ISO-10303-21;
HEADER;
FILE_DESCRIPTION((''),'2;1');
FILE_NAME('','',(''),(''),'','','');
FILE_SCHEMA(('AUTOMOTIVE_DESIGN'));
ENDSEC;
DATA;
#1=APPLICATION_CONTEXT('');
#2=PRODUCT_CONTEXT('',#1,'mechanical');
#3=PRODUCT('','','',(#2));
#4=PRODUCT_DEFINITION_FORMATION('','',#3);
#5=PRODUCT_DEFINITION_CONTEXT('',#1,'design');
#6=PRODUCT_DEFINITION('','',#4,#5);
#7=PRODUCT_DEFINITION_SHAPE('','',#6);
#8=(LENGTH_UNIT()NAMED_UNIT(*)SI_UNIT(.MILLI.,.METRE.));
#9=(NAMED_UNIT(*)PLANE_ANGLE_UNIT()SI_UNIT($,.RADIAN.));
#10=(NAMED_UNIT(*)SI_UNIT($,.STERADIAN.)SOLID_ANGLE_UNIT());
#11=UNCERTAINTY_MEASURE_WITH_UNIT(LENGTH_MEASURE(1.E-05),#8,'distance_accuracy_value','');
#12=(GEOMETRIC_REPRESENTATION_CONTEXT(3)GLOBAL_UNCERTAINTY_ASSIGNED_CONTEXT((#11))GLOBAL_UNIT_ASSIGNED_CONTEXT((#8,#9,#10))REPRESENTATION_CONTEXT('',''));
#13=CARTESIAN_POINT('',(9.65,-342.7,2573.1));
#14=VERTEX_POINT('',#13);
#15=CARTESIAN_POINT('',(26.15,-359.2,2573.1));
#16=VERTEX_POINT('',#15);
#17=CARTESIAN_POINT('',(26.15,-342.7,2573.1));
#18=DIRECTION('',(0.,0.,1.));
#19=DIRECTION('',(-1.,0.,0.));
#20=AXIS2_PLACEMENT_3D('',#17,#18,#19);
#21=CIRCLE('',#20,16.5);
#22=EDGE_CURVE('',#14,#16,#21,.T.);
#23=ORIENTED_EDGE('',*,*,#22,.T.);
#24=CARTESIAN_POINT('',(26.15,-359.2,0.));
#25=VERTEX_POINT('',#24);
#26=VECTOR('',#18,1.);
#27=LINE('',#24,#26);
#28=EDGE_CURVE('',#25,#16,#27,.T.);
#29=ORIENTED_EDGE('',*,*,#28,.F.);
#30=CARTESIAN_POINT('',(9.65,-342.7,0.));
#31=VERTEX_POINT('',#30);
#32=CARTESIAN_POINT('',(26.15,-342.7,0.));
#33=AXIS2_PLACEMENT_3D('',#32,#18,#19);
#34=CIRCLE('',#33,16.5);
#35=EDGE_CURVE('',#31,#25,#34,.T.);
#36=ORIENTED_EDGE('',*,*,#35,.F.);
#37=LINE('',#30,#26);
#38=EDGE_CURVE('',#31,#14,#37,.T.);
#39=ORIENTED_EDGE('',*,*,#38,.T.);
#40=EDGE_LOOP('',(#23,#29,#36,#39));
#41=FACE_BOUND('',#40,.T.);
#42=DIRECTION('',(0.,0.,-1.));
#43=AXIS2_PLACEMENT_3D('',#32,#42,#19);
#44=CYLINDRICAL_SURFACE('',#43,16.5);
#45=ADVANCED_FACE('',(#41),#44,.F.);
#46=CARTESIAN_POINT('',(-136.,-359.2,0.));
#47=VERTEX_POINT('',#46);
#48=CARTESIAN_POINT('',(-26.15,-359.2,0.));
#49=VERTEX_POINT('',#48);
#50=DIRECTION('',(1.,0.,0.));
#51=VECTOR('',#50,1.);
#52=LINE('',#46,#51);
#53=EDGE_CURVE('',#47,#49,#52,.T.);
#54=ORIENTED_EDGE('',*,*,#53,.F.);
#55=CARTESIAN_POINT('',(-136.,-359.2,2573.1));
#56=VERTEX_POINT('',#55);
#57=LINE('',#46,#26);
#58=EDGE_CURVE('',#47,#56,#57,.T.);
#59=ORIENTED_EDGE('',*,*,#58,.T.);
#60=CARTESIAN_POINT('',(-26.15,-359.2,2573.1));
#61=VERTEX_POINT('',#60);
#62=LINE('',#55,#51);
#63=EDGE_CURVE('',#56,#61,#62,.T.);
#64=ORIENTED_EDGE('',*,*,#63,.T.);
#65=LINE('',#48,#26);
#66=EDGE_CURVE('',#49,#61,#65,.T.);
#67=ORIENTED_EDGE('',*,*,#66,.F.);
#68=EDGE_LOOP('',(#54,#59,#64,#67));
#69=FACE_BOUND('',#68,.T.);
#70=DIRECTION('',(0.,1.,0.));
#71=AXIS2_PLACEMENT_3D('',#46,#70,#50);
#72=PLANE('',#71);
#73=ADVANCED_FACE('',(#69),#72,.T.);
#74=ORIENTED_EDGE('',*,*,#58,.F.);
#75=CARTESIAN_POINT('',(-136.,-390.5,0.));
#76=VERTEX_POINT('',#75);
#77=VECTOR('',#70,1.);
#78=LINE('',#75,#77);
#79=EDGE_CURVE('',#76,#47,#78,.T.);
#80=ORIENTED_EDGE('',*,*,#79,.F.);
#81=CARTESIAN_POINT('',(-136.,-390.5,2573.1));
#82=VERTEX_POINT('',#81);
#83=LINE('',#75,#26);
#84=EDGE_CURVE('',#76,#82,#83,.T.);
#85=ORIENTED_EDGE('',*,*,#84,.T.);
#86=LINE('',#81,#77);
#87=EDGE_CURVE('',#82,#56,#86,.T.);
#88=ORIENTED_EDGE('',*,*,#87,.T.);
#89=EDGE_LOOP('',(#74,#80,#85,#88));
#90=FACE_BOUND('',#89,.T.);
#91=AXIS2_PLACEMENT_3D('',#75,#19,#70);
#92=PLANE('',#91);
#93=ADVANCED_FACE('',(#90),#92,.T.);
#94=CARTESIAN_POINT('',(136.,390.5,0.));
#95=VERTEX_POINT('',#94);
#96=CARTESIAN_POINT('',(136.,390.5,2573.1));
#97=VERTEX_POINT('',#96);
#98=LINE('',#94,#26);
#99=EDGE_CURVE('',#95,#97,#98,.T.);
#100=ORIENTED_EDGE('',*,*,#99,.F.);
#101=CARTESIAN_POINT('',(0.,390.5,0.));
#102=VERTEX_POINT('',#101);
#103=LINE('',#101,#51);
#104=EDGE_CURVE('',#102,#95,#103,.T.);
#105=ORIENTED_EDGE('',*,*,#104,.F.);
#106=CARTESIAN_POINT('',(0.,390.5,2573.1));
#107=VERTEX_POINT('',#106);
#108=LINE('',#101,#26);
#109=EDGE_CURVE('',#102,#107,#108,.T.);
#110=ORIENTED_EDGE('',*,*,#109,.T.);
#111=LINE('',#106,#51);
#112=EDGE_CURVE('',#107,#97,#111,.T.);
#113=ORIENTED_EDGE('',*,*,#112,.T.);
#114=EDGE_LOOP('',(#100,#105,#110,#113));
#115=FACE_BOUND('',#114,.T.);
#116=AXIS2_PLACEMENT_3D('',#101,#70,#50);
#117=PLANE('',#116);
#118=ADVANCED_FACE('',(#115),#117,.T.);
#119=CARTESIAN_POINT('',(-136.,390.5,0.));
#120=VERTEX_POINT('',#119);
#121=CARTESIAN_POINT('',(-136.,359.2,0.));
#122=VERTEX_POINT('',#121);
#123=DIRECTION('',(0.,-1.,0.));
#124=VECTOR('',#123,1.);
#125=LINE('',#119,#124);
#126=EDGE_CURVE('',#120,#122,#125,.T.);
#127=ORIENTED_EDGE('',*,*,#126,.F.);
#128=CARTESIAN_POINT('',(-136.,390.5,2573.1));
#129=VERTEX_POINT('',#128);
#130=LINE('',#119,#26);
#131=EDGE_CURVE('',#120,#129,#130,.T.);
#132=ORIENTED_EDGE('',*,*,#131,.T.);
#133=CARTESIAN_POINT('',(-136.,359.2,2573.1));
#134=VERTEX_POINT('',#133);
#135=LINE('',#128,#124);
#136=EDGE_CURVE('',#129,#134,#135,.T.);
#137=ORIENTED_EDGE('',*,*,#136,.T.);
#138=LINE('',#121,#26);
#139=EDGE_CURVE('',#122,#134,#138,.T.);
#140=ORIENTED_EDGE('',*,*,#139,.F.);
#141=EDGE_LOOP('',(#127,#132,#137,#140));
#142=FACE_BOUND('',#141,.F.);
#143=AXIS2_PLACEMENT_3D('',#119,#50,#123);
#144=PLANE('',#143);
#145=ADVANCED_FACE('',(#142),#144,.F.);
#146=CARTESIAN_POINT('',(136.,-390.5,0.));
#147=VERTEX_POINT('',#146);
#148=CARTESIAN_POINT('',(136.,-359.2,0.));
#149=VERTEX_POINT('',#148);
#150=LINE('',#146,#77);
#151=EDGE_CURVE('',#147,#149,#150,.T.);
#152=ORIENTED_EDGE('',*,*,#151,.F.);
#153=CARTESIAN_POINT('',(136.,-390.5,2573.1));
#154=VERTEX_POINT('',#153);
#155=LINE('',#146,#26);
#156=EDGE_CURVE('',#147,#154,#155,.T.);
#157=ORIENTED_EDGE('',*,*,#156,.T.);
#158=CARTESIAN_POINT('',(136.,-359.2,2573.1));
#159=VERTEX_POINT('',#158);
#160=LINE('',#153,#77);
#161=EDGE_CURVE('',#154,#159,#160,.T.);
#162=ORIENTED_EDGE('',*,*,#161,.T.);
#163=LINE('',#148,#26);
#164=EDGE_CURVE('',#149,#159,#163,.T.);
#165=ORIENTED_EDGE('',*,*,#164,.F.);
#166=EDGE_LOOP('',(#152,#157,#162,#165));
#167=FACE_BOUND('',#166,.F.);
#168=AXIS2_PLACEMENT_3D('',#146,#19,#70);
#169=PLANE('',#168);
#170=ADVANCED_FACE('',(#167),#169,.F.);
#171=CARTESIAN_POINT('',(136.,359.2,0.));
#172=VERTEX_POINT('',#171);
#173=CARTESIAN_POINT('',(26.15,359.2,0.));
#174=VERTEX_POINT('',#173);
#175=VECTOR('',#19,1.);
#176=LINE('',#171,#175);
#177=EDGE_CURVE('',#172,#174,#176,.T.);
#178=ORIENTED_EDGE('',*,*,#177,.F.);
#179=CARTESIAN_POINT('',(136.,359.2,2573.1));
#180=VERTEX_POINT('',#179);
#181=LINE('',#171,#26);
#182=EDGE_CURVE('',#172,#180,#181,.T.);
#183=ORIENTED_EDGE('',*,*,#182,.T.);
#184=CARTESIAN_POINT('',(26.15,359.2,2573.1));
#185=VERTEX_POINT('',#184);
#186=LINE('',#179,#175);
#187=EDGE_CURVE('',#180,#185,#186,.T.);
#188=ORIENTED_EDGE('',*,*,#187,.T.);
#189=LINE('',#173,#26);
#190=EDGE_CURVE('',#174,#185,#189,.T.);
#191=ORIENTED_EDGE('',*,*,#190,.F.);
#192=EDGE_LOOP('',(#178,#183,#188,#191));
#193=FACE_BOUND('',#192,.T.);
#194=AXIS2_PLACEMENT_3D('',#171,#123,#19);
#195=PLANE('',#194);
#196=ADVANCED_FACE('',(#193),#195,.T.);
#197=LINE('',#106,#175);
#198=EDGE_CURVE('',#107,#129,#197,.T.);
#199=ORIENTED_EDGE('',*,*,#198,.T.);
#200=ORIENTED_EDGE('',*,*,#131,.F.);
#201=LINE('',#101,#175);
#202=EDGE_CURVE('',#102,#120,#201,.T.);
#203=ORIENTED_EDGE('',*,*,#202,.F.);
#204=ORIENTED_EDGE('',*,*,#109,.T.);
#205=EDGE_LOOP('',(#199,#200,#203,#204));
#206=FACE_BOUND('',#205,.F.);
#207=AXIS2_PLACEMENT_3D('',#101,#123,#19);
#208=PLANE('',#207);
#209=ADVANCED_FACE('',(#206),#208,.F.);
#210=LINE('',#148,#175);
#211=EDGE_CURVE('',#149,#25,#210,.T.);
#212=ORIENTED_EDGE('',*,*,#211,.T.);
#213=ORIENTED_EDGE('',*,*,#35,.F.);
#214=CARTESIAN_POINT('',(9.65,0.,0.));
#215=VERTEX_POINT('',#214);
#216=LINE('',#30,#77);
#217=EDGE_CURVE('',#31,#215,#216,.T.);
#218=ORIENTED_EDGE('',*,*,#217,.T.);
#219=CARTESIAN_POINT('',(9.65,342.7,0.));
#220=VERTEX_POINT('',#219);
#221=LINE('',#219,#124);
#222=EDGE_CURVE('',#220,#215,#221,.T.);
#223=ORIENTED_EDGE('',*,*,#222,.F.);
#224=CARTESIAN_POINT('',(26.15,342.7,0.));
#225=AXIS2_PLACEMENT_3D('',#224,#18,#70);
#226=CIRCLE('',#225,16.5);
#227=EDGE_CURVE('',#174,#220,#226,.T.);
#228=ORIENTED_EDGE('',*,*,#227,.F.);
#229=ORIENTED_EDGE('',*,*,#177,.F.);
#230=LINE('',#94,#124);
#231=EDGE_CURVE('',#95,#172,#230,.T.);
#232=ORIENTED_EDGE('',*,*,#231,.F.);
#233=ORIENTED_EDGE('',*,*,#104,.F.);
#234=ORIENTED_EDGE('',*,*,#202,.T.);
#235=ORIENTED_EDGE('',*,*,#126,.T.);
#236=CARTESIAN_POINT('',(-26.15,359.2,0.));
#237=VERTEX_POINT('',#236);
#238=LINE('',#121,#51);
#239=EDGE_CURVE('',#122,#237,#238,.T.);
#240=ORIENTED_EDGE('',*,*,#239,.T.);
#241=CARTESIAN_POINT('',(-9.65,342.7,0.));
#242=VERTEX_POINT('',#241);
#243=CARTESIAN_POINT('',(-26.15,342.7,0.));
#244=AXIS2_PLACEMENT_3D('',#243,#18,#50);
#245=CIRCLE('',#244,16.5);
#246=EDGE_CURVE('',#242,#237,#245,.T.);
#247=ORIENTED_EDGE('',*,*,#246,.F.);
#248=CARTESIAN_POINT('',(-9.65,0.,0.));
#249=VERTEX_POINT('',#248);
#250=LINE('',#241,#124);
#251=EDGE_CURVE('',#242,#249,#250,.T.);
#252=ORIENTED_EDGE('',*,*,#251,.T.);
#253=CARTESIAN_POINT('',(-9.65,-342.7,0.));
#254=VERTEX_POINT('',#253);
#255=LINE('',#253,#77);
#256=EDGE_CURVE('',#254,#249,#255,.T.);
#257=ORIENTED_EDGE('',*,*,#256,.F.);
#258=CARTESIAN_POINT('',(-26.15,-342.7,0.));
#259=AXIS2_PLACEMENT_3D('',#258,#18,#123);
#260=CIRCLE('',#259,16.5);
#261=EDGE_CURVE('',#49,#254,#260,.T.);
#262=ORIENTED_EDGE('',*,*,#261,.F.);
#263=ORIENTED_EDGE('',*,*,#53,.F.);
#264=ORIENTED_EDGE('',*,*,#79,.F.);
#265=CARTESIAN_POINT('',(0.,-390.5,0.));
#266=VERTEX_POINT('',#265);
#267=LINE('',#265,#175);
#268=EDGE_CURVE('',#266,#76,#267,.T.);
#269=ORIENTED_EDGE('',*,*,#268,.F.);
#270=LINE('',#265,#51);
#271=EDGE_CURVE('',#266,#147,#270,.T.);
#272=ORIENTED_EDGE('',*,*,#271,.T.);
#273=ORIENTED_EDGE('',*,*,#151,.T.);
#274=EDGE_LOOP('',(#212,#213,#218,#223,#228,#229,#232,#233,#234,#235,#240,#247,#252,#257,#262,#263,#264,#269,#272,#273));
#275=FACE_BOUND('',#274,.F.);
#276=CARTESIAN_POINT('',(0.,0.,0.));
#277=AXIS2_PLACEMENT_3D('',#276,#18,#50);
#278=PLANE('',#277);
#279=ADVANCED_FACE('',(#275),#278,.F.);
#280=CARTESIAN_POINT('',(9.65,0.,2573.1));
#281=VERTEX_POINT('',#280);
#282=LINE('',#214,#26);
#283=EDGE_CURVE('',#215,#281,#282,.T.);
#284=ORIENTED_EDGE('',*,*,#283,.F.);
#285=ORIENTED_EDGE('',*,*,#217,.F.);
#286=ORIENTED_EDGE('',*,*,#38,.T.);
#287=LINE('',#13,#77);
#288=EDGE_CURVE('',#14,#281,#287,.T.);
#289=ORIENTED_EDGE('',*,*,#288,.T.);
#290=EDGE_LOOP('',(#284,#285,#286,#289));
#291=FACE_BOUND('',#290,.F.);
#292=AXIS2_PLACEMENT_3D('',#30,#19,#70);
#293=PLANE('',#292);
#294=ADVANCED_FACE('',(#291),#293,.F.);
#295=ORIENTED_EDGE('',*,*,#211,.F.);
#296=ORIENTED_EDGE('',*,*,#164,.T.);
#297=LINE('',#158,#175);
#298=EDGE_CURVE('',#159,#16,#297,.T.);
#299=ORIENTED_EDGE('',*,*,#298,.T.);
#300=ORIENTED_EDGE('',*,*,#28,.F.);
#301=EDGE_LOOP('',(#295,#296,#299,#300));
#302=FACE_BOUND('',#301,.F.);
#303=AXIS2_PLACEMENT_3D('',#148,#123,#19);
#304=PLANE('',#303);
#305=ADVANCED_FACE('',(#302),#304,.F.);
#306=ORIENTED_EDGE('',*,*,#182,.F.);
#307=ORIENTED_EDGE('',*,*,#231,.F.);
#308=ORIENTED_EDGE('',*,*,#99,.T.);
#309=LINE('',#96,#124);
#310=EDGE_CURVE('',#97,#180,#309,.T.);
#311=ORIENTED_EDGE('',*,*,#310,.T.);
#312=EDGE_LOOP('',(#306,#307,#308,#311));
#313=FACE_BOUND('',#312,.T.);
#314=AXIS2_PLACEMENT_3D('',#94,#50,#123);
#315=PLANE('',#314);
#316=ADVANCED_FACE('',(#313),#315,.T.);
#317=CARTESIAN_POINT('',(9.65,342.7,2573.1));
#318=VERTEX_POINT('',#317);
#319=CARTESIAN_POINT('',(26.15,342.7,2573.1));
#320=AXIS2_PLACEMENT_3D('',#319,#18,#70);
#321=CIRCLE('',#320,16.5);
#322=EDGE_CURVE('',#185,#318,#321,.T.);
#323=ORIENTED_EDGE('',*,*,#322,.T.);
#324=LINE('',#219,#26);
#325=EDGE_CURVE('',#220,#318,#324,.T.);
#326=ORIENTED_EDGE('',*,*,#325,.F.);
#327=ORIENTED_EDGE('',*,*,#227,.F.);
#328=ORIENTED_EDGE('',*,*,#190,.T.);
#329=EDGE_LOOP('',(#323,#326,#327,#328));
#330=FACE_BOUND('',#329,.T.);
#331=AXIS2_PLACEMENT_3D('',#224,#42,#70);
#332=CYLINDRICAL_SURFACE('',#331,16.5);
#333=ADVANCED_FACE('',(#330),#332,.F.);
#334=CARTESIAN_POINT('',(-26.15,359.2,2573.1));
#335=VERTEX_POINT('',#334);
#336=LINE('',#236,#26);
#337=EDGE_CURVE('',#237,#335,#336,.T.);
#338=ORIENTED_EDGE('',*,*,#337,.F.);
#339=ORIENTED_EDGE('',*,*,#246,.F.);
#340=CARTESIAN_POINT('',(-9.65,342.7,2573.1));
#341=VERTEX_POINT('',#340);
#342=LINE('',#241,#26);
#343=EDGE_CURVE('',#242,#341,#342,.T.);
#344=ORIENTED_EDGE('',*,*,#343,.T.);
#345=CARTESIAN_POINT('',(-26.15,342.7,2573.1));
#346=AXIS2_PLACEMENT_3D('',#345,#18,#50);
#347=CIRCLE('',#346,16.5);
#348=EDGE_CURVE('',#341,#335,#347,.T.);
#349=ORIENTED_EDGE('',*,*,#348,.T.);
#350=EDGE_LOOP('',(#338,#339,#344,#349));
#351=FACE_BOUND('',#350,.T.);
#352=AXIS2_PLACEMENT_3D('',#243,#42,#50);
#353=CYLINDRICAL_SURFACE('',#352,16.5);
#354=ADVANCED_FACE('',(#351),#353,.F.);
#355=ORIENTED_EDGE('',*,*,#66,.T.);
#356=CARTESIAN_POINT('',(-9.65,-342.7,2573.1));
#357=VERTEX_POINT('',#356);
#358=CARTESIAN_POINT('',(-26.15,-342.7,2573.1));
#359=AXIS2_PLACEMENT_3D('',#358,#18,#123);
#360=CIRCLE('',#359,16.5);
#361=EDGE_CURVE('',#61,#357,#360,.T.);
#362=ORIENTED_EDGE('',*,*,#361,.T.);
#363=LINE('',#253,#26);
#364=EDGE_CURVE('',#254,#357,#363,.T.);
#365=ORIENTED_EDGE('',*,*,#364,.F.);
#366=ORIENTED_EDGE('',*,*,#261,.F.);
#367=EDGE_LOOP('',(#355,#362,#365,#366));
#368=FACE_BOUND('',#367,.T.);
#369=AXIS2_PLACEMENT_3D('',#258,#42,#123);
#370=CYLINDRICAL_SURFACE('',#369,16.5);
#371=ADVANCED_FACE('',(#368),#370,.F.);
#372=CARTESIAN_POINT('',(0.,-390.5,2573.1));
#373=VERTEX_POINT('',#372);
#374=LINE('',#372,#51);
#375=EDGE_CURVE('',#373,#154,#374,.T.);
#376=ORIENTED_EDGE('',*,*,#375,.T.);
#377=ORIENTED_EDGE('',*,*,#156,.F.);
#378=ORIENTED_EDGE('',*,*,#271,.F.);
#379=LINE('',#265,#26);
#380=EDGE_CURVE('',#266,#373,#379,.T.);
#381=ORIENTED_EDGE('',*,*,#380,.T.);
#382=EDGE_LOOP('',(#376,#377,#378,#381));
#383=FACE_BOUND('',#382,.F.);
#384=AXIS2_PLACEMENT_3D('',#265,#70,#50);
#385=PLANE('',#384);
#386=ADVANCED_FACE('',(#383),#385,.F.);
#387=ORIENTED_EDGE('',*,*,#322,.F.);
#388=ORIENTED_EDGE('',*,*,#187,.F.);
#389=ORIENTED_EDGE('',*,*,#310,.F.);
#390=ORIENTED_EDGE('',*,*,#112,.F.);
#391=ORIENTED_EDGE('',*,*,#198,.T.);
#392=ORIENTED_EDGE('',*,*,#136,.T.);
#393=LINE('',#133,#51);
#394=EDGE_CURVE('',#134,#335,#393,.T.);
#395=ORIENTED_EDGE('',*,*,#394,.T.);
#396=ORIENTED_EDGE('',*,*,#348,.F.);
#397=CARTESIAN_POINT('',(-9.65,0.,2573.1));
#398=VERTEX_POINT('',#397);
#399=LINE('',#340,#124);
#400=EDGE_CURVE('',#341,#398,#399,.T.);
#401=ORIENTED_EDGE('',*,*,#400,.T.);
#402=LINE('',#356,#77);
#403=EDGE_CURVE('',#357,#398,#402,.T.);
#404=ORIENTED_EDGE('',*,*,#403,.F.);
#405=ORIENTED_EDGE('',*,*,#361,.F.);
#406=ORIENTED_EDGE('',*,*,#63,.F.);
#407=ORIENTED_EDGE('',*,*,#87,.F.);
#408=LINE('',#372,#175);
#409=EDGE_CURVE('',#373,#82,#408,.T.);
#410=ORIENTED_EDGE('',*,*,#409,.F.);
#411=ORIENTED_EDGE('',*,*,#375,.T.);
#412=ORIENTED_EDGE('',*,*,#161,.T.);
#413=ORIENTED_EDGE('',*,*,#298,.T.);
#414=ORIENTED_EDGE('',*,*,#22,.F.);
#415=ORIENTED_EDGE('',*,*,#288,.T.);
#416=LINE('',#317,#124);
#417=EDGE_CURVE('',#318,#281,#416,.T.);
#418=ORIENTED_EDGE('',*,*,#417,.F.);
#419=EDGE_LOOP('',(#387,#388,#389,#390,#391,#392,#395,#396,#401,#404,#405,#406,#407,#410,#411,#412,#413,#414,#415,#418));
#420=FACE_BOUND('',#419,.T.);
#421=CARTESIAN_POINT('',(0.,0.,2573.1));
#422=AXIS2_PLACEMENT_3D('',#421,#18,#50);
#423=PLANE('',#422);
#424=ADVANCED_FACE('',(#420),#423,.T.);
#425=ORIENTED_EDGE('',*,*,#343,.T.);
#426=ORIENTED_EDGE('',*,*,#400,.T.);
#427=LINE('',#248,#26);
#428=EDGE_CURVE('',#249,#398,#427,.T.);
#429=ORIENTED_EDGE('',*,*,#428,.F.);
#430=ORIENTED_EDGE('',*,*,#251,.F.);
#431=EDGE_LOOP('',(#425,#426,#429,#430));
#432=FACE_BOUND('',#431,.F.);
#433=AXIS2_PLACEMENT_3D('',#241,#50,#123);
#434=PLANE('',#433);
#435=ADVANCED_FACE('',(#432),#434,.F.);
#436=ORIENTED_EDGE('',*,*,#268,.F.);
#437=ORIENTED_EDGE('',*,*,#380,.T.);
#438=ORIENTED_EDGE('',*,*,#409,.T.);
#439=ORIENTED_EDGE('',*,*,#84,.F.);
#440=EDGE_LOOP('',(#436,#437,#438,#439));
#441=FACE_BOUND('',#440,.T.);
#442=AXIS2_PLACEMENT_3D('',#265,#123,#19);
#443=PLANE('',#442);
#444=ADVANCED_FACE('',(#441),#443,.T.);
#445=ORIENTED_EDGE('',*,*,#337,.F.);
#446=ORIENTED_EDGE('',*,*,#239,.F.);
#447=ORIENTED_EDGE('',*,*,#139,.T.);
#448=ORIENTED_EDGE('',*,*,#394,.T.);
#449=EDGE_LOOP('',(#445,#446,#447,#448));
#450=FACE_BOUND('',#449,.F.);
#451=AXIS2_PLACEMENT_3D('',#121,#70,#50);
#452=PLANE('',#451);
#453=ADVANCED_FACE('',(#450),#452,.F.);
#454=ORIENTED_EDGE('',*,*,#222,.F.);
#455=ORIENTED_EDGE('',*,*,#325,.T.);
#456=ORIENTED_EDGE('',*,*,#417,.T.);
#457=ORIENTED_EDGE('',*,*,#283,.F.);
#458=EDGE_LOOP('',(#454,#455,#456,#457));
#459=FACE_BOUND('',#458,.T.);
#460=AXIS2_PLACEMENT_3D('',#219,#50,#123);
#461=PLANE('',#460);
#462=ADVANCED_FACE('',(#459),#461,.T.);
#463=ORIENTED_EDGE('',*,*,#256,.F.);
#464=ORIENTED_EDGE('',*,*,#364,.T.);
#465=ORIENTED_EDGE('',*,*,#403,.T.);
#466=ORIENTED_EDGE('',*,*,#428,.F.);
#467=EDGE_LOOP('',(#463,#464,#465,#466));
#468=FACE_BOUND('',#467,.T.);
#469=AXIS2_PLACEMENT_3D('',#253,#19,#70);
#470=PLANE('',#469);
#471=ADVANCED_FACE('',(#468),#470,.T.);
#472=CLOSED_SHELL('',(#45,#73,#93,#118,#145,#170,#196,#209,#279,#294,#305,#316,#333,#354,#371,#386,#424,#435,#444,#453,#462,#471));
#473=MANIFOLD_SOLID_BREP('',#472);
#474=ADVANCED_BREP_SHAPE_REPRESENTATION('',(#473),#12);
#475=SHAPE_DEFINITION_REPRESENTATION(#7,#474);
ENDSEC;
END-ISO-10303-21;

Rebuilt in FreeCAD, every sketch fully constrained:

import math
import FreeCAD as App
import Part
import Sketcher

doc = App.newDocument("Part")
body = doc.addObject("PartDesign::Body", "Body")

sketch1 = doc.addObject("Sketcher::SketchObject", "Sketch")
body.addObject(sketch1)
sketch1.AttachmentSupport = (doc.XY_Plane, [""])
sketch1.MapMode = "FlatFace"
sketch1.addGeometry(Part.LineSegment(App.Vector(-136, -359, 0), App.Vector(-136, -390, 0)), False)
sketch1.addGeometry(Part.LineSegment(App.Vector(-136, -390, 0), App.Vector(136, -390, 0)), False)
sketch1.addGeometry(Part.LineSegment(App.Vector(136, -390, 0), App.Vector(136, -359, 0)), False)
sketch1.addGeometry(Part.LineSegment(App.Vector(136, -359, 0), App.Vector(26, -359, 0)), False)
sketch1.addGeometry(Part.ArcOfCircle(Part.Circle(App.Vector(26, -343, 0), App.Vector(0, 0, 1), 16), math.radians(180), math.radians(270)), False)
sketch1.addGeometry(Part.LineSegment(App.Vector(10, -343, 0), App.Vector(10, 343, 0)), False)
sketch1.addGeometry(Part.ArcOfCircle(Part.Circle(App.Vector(26, 343, 0), App.Vector(0, 0, 1), 16), math.radians(90), math.radians(180)), False)
sketch1.addGeometry(Part.LineSegment(App.Vector(26, 359, 0), App.Vector(136, 359, 0)), False)
sketch1.addGeometry(Part.LineSegment(App.Vector(136, 359, 0), App.Vector(136, 390, 0)), False)
sketch1.addGeometry(Part.LineSegment(App.Vector(136, 390, 0), App.Vector(-136, 390, 0)), False)
sketch1.addGeometry(Part.LineSegment(App.Vector(-136, 390, 0), App.Vector(-136, 359, 0)), False)
sketch1.addGeometry(Part.LineSegment(App.Vector(-136, 359, 0), App.Vector(-26, 359, 0)), False)
sketch1.addGeometry(Part.ArcOfCircle(Part.Circle(App.Vector(-26, 343, 0), App.Vector(0, 0, 1), 16), math.radians(0), math.radians(90)), False)
sketch1.addGeometry(Part.LineSegment(App.Vector(-10, 343, 0), App.Vector(-10, -343, 0)), False)
sketch1.addGeometry(Part.ArcOfCircle(Part.Circle(App.Vector(-26, -343, 0), App.Vector(0, 0, 1), 16), math.radians(-90), math.radians(0)), False)
sketch1.addGeometry(Part.LineSegment(App.Vector(-26, -359, 0), App.Vector(-136, -359, 0)), False)
sketch1.addConstraint(Sketcher.Constraint("Coincident", 0, 2, 1, 1))
sketch1.addConstraint(Sketcher.Constraint("Coincident", 1, 2, 2, 1))
sketch1.addConstraint(Sketcher.Constraint("Coincident", 2, 2, 3, 1))
sketch1.addConstraint(Sketcher.Constraint("Tangent", 3, 2, 4, 2))
sketch1.addConstraint(Sketcher.Constraint("Tangent", 4, 1, 5, 1))
sketch1.addConstraint(Sketcher.Constraint("Tangent", 5, 2, 6, 2))
sketch1.addConstraint(Sketcher.Constraint("Tangent", 6, 1, 7, 1))
sketch1.addConstraint(Sketcher.Constraint("Coincident", 7, 2, 8, 1))
sketch1.addConstraint(Sketcher.Constraint("Coincident", 8, 2, 9, 1))
sketch1.addConstraint(Sketcher.Constraint("Coincident", 9, 2, 10, 1))
sketch1.addConstraint(Sketcher.Constraint("Coincident", 10, 2, 11, 1))
sketch1.addConstraint(Sketcher.Constraint("Tangent", 11, 2, 12, 2))
sketch1.addConstraint(Sketcher.Constraint("Tangent", 12, 1, 13, 1))
sketch1.addConstraint(Sketcher.Constraint("Tangent", 13, 2, 14, 2))
sketch1.addConstraint(Sketcher.Constraint("Tangent", 14, 1, 15, 1))
sketch1.addConstraint(Sketcher.Constraint("Coincident", 15, 2, 0, 1))
sketch1.addConstraint(Sketcher.Constraint("Vertical", 0))
sketch1.addConstraint(Sketcher.Constraint("Horizontal", 1))
sketch1.addConstraint(Sketcher.Constraint("Vertical", 2))
sketch1.addConstraint(Sketcher.Constraint("Horizontal", 3))
sketch1.addConstraint(Sketcher.Constraint("Vertical", 5))
sketch1.addConstraint(Sketcher.Constraint("Horizontal", 7))
sketch1.addConstraint(Sketcher.Constraint("Vertical", 8))
sketch1.addConstraint(Sketcher.Constraint("Horizontal", 9))
sketch1.addConstraint(Sketcher.Constraint("Vertical", 10))
sketch1.addConstraint(Sketcher.Constraint("Horizontal", 11))
sketch1.addConstraint(Sketcher.Constraint("Vertical", 13))
sketch1.addConstraint(Sketcher.Constraint("Horizontal", 15))
sketch1.addConstraint(Sketcher.Constraint("Equal", 4, 6))
sketch1.addConstraint(Sketcher.Constraint("Equal", 6, 12))
sketch1.addConstraint(Sketcher.Constraint("Equal", 12, 14))
sketch1.addConstraint(Sketcher.Constraint("Symmetric", 4, 3, 12, 3, -1, 1))
sketch1.addConstraint(Sketcher.Constraint("Symmetric", 0, 2, 8, 2, -1, 1))
sketch1.addConstraint(Sketcher.Constraint("Symmetric", 7, 2, 10, 2, -2))
sketch1.addConstraint(Sketcher.Constraint("Symmetric", 2, 2, 15, 2, -2))
sketch1.addConstraint(Sketcher.Constraint("Radius", 4, 16.5))
sketch1.addConstraint(Sketcher.Constraint("DistanceY", 0, 2, 0, 1, 31.3))
sketch1.addConstraint(Sketcher.Constraint("DistanceX", 0, 2, -1, 1, 136.0))
sketch1.addConstraint(Sketcher.Constraint("DistanceY", 0, 2, -1, 1, 390.5))
sketch1.addConstraint(Sketcher.Constraint("DistanceX", -1, 1, 4, 1, 9.65))
pad1 = doc.addObject("PartDesign::Pad", "Pad")
body.addObject(pad1)
pad1.Profile = sketch1
pad1.Length = 2573.1

doc.recompute()
